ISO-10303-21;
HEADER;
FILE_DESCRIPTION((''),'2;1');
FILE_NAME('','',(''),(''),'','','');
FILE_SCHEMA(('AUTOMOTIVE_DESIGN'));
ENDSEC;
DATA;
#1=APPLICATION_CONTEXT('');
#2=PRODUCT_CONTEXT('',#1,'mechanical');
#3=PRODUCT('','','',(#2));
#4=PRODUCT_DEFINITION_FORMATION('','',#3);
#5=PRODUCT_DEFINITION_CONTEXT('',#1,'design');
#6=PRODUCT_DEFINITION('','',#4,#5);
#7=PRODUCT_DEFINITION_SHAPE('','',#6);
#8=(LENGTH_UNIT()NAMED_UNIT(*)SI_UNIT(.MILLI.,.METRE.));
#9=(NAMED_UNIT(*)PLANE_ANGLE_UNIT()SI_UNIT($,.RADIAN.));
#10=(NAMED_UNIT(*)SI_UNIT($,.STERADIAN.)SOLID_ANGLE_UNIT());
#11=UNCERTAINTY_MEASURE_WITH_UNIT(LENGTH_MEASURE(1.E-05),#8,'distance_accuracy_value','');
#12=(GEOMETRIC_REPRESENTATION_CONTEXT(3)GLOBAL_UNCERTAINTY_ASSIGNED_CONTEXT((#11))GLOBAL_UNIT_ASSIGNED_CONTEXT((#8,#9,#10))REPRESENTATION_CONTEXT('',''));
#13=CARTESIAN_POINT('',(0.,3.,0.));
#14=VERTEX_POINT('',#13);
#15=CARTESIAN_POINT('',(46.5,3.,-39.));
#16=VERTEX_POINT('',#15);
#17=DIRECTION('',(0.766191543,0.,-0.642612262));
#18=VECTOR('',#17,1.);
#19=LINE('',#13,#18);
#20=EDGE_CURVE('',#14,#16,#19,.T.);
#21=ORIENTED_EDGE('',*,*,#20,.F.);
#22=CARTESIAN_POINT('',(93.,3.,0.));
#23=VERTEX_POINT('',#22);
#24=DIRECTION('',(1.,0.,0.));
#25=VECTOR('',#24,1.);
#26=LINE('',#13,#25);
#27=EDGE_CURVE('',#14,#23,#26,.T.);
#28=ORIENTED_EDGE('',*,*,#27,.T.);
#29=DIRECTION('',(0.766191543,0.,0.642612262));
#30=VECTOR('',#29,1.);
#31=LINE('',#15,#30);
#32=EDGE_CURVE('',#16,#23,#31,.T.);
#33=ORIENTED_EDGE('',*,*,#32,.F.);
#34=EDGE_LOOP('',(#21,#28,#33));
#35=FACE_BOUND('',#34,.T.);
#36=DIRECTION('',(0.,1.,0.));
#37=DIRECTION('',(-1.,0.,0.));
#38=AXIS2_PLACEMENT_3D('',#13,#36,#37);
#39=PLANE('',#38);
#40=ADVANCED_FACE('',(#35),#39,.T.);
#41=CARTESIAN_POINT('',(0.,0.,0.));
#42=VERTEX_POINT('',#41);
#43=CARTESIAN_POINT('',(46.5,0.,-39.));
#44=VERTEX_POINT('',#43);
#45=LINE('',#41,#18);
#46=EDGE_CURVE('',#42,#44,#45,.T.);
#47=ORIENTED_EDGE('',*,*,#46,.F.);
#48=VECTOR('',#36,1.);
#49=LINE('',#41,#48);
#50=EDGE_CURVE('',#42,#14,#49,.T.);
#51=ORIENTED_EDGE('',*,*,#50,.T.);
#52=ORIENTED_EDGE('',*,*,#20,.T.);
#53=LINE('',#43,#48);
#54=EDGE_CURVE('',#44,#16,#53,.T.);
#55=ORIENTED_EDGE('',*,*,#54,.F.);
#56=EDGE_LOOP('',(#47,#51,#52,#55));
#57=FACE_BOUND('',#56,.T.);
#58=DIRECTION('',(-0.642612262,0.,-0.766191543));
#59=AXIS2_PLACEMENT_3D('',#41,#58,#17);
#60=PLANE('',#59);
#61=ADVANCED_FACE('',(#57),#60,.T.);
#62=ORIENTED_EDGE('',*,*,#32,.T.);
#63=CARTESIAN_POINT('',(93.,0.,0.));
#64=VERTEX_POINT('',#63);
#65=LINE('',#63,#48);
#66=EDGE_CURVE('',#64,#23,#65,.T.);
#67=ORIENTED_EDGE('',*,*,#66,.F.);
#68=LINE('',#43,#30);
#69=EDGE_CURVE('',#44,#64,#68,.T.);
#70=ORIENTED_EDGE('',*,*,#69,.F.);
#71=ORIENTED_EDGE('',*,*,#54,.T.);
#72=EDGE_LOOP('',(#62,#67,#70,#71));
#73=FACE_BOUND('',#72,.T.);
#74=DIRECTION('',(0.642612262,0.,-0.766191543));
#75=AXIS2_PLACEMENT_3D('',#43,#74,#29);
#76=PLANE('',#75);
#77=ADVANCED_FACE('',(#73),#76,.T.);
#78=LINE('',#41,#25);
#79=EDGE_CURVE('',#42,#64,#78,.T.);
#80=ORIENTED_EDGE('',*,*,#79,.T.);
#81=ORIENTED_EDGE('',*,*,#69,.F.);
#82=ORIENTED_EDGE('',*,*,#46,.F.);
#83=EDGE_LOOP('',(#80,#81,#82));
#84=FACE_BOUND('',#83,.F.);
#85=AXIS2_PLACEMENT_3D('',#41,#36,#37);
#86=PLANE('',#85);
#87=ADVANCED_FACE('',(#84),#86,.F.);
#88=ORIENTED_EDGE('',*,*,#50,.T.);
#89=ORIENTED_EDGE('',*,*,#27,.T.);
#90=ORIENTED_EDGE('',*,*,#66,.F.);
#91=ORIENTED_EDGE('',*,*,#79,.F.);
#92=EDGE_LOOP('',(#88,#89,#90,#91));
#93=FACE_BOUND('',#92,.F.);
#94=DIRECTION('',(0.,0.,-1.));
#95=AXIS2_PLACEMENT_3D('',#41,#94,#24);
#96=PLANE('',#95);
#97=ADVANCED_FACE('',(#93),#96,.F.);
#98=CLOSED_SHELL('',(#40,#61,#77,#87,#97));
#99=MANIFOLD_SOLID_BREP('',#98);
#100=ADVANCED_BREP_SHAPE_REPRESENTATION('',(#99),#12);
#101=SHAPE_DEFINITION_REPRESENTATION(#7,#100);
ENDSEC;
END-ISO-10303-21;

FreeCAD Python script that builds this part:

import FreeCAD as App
import Part
import Sketcher


def add_polygon(sketch, points):
    """Adds a closed chain of lines whose ends are joined by coincident constraints."""
    first, n = sketch.GeometryCount, len(points)
    for a, b in zip(points, points[1:] + points[:1]):
        sketch.addGeometry(Part.LineSegment(App.Vector(*a, 0), App.Vector(*b, 0)), False)
    for i in range(n):
        sketch.addConstraint(Sketcher.Constraint("Coincident", first + i, 2, first + (i + 1) % n, 1))

doc = App.newDocument("Part")
body = doc.addObject("PartDesign::Body", "Body")

# Sketch on XZ plane
sketch1 = body.newObject("Sketcher::SketchObject", "Sketch")
sketch1.AttachmentSupport = (doc.getObject("XZ_Plane"), [""])
sketch1.MapMode = "FlatFace"
add_polygon(sketch1, [(46, -39), (0, 0), (93, 0)])  # lines 0-2
sketch1.addConstraint(Sketcher.Constraint("Horizontal", 1))
sketch1.addConstraint(Sketcher.Constraint("Coincident", 0, 2, -1, 1))
sketch1.addConstraint(Sketcher.Constraint("Equal", 0, 2))
sketch1.addConstraint(Sketcher.Constraint("DistanceX", 1, 1, 1, 2, 93.0))
sketch1.addConstraint(Sketcher.Constraint("DistanceY", 2, 2, -1, 1, 39.0))
pad1 = body.newObject("PartDesign::Pad", "Pad")
pad1.Profile = sketch1
pad1.Length = 3
pad1.Reversed = True

doc.recompute()
